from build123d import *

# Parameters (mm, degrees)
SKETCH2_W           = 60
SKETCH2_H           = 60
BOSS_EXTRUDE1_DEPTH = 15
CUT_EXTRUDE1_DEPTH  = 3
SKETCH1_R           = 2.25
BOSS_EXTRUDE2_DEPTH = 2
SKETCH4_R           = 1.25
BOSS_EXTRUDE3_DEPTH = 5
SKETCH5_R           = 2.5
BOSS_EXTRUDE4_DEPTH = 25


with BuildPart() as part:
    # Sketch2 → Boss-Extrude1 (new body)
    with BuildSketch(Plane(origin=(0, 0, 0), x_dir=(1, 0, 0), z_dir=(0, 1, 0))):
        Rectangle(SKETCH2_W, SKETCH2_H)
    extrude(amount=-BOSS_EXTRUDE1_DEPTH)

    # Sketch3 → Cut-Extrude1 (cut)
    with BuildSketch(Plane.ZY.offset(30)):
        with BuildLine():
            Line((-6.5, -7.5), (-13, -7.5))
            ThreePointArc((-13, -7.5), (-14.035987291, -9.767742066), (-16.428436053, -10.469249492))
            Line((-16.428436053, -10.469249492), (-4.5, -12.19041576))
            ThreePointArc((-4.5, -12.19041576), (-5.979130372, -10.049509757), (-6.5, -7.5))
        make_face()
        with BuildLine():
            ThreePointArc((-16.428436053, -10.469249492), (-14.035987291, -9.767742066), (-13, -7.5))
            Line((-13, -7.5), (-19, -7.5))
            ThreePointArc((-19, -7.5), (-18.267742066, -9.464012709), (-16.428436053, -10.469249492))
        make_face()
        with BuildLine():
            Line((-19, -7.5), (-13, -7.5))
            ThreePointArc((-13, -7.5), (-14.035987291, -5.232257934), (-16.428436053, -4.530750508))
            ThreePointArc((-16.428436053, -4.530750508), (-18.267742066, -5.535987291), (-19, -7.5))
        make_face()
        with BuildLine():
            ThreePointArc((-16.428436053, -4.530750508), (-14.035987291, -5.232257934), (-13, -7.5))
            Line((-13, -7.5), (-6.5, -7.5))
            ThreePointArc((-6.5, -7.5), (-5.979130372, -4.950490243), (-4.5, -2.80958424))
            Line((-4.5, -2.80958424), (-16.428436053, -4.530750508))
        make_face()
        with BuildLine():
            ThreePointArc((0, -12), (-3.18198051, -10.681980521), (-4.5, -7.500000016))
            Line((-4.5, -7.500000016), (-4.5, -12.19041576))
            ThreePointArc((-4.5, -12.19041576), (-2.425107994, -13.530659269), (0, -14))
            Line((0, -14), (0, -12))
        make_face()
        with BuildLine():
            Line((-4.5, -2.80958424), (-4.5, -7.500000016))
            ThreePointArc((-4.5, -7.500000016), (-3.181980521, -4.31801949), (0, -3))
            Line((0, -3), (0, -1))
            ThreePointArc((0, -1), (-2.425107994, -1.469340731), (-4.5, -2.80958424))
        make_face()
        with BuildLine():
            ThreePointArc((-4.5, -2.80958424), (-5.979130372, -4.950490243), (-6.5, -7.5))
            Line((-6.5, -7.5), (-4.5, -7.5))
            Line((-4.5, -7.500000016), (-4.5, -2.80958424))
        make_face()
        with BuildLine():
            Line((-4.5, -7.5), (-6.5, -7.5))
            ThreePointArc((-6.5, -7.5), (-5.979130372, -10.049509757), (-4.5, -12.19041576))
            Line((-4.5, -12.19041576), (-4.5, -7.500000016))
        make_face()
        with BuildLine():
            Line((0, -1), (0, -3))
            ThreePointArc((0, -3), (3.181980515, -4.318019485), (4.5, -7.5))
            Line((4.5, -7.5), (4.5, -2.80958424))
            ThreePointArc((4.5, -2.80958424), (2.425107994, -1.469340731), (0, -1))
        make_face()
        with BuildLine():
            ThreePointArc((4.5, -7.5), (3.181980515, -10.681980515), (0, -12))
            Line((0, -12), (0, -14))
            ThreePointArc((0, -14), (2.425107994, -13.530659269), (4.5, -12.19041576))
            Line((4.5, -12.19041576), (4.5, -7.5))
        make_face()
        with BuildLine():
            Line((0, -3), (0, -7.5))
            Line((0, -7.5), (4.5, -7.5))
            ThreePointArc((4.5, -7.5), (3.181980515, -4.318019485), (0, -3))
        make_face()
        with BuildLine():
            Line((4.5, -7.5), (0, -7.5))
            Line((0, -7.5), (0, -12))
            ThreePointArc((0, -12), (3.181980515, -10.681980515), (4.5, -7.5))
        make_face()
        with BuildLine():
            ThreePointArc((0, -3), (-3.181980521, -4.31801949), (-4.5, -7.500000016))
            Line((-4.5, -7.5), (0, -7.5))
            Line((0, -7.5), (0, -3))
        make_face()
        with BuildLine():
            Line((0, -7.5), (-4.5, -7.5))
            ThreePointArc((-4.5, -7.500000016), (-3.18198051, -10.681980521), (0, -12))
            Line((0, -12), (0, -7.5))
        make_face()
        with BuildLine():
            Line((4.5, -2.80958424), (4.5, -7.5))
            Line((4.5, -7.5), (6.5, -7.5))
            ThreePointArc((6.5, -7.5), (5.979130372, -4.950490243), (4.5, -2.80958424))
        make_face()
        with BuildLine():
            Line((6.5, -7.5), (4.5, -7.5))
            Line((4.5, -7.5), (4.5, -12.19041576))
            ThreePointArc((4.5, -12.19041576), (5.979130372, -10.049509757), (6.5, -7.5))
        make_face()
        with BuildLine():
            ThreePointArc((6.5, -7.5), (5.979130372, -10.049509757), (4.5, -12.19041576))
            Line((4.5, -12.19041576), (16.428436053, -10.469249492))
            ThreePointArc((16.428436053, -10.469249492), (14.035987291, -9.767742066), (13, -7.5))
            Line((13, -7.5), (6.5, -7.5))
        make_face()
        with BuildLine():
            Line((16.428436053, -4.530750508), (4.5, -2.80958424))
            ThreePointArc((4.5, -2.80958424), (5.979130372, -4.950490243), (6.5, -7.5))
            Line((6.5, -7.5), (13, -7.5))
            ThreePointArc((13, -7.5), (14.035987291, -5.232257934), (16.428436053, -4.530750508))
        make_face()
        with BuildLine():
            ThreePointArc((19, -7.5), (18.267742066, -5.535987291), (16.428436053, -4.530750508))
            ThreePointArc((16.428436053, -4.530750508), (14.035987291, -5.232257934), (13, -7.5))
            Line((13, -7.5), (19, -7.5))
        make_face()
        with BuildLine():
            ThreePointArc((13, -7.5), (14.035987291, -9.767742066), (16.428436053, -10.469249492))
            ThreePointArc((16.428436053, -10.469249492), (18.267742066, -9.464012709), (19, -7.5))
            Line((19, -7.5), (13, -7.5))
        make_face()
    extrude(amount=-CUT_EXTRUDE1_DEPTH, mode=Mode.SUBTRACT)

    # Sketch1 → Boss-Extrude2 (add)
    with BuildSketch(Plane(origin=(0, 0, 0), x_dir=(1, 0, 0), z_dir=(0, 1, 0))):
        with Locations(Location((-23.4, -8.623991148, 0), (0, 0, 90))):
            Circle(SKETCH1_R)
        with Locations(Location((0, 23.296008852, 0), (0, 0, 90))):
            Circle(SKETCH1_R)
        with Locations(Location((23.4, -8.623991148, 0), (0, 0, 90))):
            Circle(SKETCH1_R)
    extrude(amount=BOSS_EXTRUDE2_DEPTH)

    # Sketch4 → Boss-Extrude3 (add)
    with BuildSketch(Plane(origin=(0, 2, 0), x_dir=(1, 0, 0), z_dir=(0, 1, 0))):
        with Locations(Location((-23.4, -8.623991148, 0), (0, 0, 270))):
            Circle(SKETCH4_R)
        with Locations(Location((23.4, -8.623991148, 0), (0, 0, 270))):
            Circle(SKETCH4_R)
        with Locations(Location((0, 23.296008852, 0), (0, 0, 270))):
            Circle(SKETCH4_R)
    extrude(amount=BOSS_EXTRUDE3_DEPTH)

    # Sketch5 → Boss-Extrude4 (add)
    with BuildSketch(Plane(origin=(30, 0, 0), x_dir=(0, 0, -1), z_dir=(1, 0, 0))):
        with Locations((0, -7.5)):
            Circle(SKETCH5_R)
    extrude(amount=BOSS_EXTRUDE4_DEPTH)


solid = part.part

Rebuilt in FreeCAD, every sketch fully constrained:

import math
import FreeCAD as App
import Part
import Sketcher
from FreeCAD import Vector
Q = App.Units.Quantity


def add_polygon(sketch, points):
    """Adds a closed chain of lines whose ends are joined by coincident constraints."""
    first, n = sketch.GeometryCount, len(points)
    for a, b in zip(points, points[1:] + points[:1]):
        sketch.addGeometry(Part.LineSegment(App.Vector(*a, 0), App.Vector(*b, 0)), False)
    for i in range(n):
        sketch.addConstraint(Sketcher.Constraint("Coincident", first + i, 2, first + (i + 1) % n, 1))

doc = App.newDocument("Part")
params = doc.addObject("Spreadsheet::Sheet", "Params")
for row, (alias, value) in enumerate([
    ("sketch1_width", "60 mm"),
    ("pad1_length", "15 mm"),
    ("sketch2_radius", "3 mm"),
    ("sketch2_radius2", "6.5 mm"),
    ("pocket1_length", "3 mm"),
    ("sketch3_diameter", "4.5 mm"),
    ("pad2_length", "2 mm"),
    ("sketch4_diameter", "2.5 mm"),
    ("pad3_length", "5 mm"),
    ("sketch5_diameter", "5 mm"),
    ("pad4_length", "25 mm"),
], start=1):
    params.set(f"A{row}", alias)
    params.set(f"B{row}", "=" + value)
    params.setAlias(f"B{row}", alias)

body = doc.addObject("PartDesign::Body", "Body")

# Sketch on XZ plane
sketch1 = body.newObject("Sketcher::SketchObject", "Sketch")
sketch1.AttachmentSupport = (doc.getObject("XZ_Plane"), [""])
sketch1.MapMode = "FlatFace"
add_polygon(sketch1, [(-30, -30), (-30, 30), (30, 30), (30, -30)])  # lines 0-3
sketch1.addConstraint([
    Sketcher.Constraint("Vertical", 0),
    Sketcher.Constraint("Horizontal", 1),
    Sketcher.Constraint("Vertical", 2),
    Sketcher.Constraint("Horizontal", 3),
    Sketcher.Constraint("Symmetric", 0, 2, 2, 2, -1, 1),
    Sketcher.Constraint("Equal", 3, 0),
    Sketcher.Constraint("DistanceX", 1, 1, 1, 2, Q("60 mm")),
])
sketch1.setExpression("Constraints[10]", "Params.sketch1_width")
pad1 = body.newObject("PartDesign::Pad", "Pad")
pad1.Profile = sketch1
pad1.setExpression("Length", "Params.pad1_length")

# Sketch on YZ plane
sketch2 = body.newObject("Sketcher::SketchObject", "Sketch001")
sketch2.AttachmentSupport = (doc.getObject("YZ_Plane"), [""])
sketch2.MapMode = "FlatFace"
sketch2.AttachmentOffset = App.Placement(Vector(0, 0, -30), App.Rotation())
sketch2.addGeometry([
    Part.LineSegment(Vector(-10.5, -16.4, 0), Vector(-12.2, -4.5, 0)),  # 0
    Part.ArcOfCircle(Part.Circle(Vector(-7.5, 0, 0), Vector(0, 0, 1), 6.5), math.radians(180), math.radians(224)),  # 1
    Part.ArcOfCircle(Part.Circle(Vector(-7.5, 0, 0), Vector(0, 0, 1), 6.5), math.radians(136), math.radians(180)),  # 2
    Part.LineSegment(Vector(-12.2, 4.5, 0), Vector(-10.5, 16.4, 0)),  # 3
    Part.ArcOfCircle(Part.Circle(Vector(-7.5, 16, 0), Vector(0, 0, 1), 3), math.radians(90), math.radians(172)),  # 4
    Part.ArcOfCircle(Part.Circle(Vector(-7.5, 16, 0), Vector(0, 0, 1), 3), math.radians(8), math.radians(90)),  # 5
    Part.LineSegment(Vector(-4.5, 16.4, 0), Vector(-2.8, 4.5, 0)),  # 6
    Part.ArcOfCircle(Part.Circle(Vector(-7.5, 0, 0), Vector(0, 0, 1), 6.5), math.radians(0), math.radians(44)),  # 7
    Part.ArcOfCircle(Part.Circle(Vector(-7.5, 0, 0), Vector(0, 0, 1), 6.5), math.radians(-44), math.radians(0)),  # 8
    Part.LineSegment(Vector(-2.8, -4.5, 0), Vector(-4.5, -16.4, 0)),  # 9
    Part.ArcOfCircle(Part.Circle(Vector(-7.5, -16, 0), Vector(0, 0, 1), 3), math.radians(-90), math.radians(-8)),  # 10
    Part.ArcOfCircle(Part.Circle(Vector(-7.5, -16, 0), Vector(0, 0, 1), 3), math.radians(-172), math.radians(-90)),  # 11
], False)
sketch2.addConstraint([
    Sketcher.Constraint("Coincident", 0, 2, 1, 2),
    Sketcher.Constraint("Tangent", 1, 1, 2, 2),
    Sketcher.Constraint("Coincident", 2, 1, 3, 1),
    Sketcher.Constraint("Tangent", 3, 2, 4, 2),
    Sketcher.Constraint("Tangent", 4, 1, 5, 2),
    Sketcher.Constraint("Tangent", 5, 1, 6, 1),
    Sketcher.Constraint("Coincident", 6, 2, 7, 2),
    Sketcher.Constraint("Tangent", 7, 1, 8, 2),
    Sketcher.Constraint("Coincident", 8, 1, 9, 1),
    Sketcher.Constraint("Tangent", 9, 2, 10, 2),
    Sketcher.Constraint("Tangent", 10, 1, 11, 2),
    Sketcher.Constraint("Tangent", 11, 1, 0, 1),
    Sketcher.Constraint("Coincident", 7, 3, 1, 3),
    Sketcher.Constraint("Equal", 1, 2),
    Sketcher.Constraint("Equal", 4, 5),
    Sketcher.Constraint("Equal", 2, 7),
    Sketcher.Constraint("Equal", 7, 8),
    Sketcher.Constraint("Equal", 5, 10),
    Sketcher.Constraint("Equal", 10, 11),
    Sketcher.Constraint("Symmetric", 4, 3, 10, 3, -1),
    Sketcher.Constraint("Symmetric", 0, 2, 2, 1, -1),
    Sketcher.Constraint("PointOnObject", 1, 1, -1),
    Sketcher.Constraint("PointOnObject", 7, 1, -1),
    Sketcher.Constraint("Parallel", 0, 6),
    Sketcher.Constraint("Parallel", 3, 9),
    Sketcher.Constraint("Horizontal", 2, 1, 6, 2),
    Sketcher.Constraint("Vertical", 11, 3, 4, 1),
    Sketcher.Constraint("Vertical", 4, 1, 10, 1),
    Sketcher.Constraint("Radius", 4, Q("3 mm")),
    Sketcher.Constraint("Radius", 1, Q("6.5 mm")),
    Sketcher.Constraint("DistanceY", -1, 1, 4, 3, Q("16 mm")),
    Sketcher.Constraint("DistanceX", 1, 1, -1, 1, Q("14 mm")),
    Sketcher.Constraint("DistanceY", 0, 2, -1, 1, Q("4.5 mm")),
])
sketch2.setExpression("Constraints[28]", "Params.sketch2_radius")
sketch2.setExpression("Constraints[29]", "Params.sketch2_radius2")
pocket1 = body.newObject("PartDesign::Pocket", "Pocket")
pocket1.Profile = sketch2
pocket1.setExpression("Length", "Params.pocket1_length")
pocket1.Reversed = True

# Sketch on XZ plane
sketch3 = body.newObject("Sketcher::SketchObject", "Sketch002")
sketch3.AttachmentSupport = (doc.getObject("XZ_Plane"), [""])
sketch3.MapMode = "FlatFace"
sketch3.addGeometry([
    Part.Circle(Vector(-23.4, 8.6, 0), Vector(0, 0, 1), 2.2),
    Part.Circle(Vector(0, -23.3, 0), Vector(0, 0, 1), 2.2),
    Part.Circle(Vector(23.4, 8.6, 0), Vector(0, 0, 1), 2.2),
], False)
sketch3.addConstraint([
    Sketcher.Constraint("Equal", 0, 1),
    Sketcher.Constraint("Equal", 1, 2),
    Sketcher.Constraint("Symmetric", 0, 3, 2, 3, -2),
    Sketcher.Constraint("PointOnObject", 1, 3, -2),
    Sketcher.Constraint("Diameter", 0, Q("4.5 mm")),
    Sketcher.Constraint("DistanceX", 0, 3, -1, 1, Q("23.4 mm")),
    Sketcher.Constraint("DistanceY", 1, 3, 0, 3, Q("31.92 mm")),
    Sketcher.Constraint("DistanceY", -1, 1, 0, 3, Q("8.623991 mm")),
])
sketch3.setExpression("Constraints[4]", "Params.sketch3_diameter")
pad2 = body.newObject("PartDesign::Pad", "Pad001")
pad2.Profile = sketch3
pad2.setExpression("Length", "Params.pad2_length")
pad2.Reversed = True

# Sketch on XZ plane
sketch4 = body.newObject("Sketcher::SketchObject", "Sketch003")
sketch4.AttachmentSupport = (doc.getObject("XZ_Plane"), [""])
sketch4.MapMode = "FlatFace"
sketch4.AttachmentOffset = App.Placement(Vector(0, 0, -2), App.Rotation())
sketch4.addGeometry([
    Part.Circle(Vector(-23.4, 8.6, 0), Vector(0, 0, 1), 1.2),
    Part.Circle(Vector(23.4, 8.6, 0), Vector(0, 0, 1), 1.2),
    Part.Circle(Vector(0, -23.3, 0), Vector(0, 0, 1), 1.2),
], False)
sketch4.addConstraint([
    Sketcher.Constraint("Equal", 0, 1),
    Sketcher.Constraint("Equal", 1, 2),
    Sketcher.Constraint("Symmetric", 0, 3, 1, 3, -2),
    Sketcher.Constraint("PointOnObject", 2, 3, -2),
    Sketcher.Constraint("Diameter", 0, Q("2.5 mm")),
    Sketcher.Constraint("DistanceX", 0, 3, -1, 1, Q("23.4 mm")),
    Sketcher.Constraint("DistanceY", 2, 3, 0, 3, Q("31.92 mm")),
    Sketcher.Constraint("DistanceY", -1, 1, 0, 3, Q("8.623991 mm")),
])
sketch4.setExpression("Constraints[4]", "Params.sketch4_diameter")
pad3 = body.newObject("PartDesign::Pad", "Pad002")
pad3.Profile = sketch4
pad3.setExpression("Length", "Params.pad3_length")
pad3.Reversed = True

# Sketch on YZ plane
sketch5 = body.newObject("Sketcher::SketchObject", "Sketch004")
sketch5.AttachmentSupport = (doc.getObject("YZ_Plane"), [""])
sketch5.MapMode = "FlatFace"
sketch5.AttachmentOffset = App.Placement(Vector(0, 0, 30), App.Rotation())
sketch5.addGeometry(Part.Circle(Vector(-7.5, 0, 0), Vector(0, 0, 1), 2.5), False)
sketch5.addConstraint([
    Sketcher.Constraint("PointOnObject", 0, 3, -1),
    Sketcher.Constraint("Diameter", 0, Q("5 mm")),
    Sketcher.Constraint("DistanceX", 0, 3, -1, 1, Q("7.5 mm")),
])
sketch5.setExpression("Constraints[1]", "Params.sketch5_diameter")
pad4 = body.newObject("PartDesign::Pad", "Pad003")
pad4.Profile = sketch5
pad4.setExpression("Length", "Params.pad4_length")

doc.recompute()
